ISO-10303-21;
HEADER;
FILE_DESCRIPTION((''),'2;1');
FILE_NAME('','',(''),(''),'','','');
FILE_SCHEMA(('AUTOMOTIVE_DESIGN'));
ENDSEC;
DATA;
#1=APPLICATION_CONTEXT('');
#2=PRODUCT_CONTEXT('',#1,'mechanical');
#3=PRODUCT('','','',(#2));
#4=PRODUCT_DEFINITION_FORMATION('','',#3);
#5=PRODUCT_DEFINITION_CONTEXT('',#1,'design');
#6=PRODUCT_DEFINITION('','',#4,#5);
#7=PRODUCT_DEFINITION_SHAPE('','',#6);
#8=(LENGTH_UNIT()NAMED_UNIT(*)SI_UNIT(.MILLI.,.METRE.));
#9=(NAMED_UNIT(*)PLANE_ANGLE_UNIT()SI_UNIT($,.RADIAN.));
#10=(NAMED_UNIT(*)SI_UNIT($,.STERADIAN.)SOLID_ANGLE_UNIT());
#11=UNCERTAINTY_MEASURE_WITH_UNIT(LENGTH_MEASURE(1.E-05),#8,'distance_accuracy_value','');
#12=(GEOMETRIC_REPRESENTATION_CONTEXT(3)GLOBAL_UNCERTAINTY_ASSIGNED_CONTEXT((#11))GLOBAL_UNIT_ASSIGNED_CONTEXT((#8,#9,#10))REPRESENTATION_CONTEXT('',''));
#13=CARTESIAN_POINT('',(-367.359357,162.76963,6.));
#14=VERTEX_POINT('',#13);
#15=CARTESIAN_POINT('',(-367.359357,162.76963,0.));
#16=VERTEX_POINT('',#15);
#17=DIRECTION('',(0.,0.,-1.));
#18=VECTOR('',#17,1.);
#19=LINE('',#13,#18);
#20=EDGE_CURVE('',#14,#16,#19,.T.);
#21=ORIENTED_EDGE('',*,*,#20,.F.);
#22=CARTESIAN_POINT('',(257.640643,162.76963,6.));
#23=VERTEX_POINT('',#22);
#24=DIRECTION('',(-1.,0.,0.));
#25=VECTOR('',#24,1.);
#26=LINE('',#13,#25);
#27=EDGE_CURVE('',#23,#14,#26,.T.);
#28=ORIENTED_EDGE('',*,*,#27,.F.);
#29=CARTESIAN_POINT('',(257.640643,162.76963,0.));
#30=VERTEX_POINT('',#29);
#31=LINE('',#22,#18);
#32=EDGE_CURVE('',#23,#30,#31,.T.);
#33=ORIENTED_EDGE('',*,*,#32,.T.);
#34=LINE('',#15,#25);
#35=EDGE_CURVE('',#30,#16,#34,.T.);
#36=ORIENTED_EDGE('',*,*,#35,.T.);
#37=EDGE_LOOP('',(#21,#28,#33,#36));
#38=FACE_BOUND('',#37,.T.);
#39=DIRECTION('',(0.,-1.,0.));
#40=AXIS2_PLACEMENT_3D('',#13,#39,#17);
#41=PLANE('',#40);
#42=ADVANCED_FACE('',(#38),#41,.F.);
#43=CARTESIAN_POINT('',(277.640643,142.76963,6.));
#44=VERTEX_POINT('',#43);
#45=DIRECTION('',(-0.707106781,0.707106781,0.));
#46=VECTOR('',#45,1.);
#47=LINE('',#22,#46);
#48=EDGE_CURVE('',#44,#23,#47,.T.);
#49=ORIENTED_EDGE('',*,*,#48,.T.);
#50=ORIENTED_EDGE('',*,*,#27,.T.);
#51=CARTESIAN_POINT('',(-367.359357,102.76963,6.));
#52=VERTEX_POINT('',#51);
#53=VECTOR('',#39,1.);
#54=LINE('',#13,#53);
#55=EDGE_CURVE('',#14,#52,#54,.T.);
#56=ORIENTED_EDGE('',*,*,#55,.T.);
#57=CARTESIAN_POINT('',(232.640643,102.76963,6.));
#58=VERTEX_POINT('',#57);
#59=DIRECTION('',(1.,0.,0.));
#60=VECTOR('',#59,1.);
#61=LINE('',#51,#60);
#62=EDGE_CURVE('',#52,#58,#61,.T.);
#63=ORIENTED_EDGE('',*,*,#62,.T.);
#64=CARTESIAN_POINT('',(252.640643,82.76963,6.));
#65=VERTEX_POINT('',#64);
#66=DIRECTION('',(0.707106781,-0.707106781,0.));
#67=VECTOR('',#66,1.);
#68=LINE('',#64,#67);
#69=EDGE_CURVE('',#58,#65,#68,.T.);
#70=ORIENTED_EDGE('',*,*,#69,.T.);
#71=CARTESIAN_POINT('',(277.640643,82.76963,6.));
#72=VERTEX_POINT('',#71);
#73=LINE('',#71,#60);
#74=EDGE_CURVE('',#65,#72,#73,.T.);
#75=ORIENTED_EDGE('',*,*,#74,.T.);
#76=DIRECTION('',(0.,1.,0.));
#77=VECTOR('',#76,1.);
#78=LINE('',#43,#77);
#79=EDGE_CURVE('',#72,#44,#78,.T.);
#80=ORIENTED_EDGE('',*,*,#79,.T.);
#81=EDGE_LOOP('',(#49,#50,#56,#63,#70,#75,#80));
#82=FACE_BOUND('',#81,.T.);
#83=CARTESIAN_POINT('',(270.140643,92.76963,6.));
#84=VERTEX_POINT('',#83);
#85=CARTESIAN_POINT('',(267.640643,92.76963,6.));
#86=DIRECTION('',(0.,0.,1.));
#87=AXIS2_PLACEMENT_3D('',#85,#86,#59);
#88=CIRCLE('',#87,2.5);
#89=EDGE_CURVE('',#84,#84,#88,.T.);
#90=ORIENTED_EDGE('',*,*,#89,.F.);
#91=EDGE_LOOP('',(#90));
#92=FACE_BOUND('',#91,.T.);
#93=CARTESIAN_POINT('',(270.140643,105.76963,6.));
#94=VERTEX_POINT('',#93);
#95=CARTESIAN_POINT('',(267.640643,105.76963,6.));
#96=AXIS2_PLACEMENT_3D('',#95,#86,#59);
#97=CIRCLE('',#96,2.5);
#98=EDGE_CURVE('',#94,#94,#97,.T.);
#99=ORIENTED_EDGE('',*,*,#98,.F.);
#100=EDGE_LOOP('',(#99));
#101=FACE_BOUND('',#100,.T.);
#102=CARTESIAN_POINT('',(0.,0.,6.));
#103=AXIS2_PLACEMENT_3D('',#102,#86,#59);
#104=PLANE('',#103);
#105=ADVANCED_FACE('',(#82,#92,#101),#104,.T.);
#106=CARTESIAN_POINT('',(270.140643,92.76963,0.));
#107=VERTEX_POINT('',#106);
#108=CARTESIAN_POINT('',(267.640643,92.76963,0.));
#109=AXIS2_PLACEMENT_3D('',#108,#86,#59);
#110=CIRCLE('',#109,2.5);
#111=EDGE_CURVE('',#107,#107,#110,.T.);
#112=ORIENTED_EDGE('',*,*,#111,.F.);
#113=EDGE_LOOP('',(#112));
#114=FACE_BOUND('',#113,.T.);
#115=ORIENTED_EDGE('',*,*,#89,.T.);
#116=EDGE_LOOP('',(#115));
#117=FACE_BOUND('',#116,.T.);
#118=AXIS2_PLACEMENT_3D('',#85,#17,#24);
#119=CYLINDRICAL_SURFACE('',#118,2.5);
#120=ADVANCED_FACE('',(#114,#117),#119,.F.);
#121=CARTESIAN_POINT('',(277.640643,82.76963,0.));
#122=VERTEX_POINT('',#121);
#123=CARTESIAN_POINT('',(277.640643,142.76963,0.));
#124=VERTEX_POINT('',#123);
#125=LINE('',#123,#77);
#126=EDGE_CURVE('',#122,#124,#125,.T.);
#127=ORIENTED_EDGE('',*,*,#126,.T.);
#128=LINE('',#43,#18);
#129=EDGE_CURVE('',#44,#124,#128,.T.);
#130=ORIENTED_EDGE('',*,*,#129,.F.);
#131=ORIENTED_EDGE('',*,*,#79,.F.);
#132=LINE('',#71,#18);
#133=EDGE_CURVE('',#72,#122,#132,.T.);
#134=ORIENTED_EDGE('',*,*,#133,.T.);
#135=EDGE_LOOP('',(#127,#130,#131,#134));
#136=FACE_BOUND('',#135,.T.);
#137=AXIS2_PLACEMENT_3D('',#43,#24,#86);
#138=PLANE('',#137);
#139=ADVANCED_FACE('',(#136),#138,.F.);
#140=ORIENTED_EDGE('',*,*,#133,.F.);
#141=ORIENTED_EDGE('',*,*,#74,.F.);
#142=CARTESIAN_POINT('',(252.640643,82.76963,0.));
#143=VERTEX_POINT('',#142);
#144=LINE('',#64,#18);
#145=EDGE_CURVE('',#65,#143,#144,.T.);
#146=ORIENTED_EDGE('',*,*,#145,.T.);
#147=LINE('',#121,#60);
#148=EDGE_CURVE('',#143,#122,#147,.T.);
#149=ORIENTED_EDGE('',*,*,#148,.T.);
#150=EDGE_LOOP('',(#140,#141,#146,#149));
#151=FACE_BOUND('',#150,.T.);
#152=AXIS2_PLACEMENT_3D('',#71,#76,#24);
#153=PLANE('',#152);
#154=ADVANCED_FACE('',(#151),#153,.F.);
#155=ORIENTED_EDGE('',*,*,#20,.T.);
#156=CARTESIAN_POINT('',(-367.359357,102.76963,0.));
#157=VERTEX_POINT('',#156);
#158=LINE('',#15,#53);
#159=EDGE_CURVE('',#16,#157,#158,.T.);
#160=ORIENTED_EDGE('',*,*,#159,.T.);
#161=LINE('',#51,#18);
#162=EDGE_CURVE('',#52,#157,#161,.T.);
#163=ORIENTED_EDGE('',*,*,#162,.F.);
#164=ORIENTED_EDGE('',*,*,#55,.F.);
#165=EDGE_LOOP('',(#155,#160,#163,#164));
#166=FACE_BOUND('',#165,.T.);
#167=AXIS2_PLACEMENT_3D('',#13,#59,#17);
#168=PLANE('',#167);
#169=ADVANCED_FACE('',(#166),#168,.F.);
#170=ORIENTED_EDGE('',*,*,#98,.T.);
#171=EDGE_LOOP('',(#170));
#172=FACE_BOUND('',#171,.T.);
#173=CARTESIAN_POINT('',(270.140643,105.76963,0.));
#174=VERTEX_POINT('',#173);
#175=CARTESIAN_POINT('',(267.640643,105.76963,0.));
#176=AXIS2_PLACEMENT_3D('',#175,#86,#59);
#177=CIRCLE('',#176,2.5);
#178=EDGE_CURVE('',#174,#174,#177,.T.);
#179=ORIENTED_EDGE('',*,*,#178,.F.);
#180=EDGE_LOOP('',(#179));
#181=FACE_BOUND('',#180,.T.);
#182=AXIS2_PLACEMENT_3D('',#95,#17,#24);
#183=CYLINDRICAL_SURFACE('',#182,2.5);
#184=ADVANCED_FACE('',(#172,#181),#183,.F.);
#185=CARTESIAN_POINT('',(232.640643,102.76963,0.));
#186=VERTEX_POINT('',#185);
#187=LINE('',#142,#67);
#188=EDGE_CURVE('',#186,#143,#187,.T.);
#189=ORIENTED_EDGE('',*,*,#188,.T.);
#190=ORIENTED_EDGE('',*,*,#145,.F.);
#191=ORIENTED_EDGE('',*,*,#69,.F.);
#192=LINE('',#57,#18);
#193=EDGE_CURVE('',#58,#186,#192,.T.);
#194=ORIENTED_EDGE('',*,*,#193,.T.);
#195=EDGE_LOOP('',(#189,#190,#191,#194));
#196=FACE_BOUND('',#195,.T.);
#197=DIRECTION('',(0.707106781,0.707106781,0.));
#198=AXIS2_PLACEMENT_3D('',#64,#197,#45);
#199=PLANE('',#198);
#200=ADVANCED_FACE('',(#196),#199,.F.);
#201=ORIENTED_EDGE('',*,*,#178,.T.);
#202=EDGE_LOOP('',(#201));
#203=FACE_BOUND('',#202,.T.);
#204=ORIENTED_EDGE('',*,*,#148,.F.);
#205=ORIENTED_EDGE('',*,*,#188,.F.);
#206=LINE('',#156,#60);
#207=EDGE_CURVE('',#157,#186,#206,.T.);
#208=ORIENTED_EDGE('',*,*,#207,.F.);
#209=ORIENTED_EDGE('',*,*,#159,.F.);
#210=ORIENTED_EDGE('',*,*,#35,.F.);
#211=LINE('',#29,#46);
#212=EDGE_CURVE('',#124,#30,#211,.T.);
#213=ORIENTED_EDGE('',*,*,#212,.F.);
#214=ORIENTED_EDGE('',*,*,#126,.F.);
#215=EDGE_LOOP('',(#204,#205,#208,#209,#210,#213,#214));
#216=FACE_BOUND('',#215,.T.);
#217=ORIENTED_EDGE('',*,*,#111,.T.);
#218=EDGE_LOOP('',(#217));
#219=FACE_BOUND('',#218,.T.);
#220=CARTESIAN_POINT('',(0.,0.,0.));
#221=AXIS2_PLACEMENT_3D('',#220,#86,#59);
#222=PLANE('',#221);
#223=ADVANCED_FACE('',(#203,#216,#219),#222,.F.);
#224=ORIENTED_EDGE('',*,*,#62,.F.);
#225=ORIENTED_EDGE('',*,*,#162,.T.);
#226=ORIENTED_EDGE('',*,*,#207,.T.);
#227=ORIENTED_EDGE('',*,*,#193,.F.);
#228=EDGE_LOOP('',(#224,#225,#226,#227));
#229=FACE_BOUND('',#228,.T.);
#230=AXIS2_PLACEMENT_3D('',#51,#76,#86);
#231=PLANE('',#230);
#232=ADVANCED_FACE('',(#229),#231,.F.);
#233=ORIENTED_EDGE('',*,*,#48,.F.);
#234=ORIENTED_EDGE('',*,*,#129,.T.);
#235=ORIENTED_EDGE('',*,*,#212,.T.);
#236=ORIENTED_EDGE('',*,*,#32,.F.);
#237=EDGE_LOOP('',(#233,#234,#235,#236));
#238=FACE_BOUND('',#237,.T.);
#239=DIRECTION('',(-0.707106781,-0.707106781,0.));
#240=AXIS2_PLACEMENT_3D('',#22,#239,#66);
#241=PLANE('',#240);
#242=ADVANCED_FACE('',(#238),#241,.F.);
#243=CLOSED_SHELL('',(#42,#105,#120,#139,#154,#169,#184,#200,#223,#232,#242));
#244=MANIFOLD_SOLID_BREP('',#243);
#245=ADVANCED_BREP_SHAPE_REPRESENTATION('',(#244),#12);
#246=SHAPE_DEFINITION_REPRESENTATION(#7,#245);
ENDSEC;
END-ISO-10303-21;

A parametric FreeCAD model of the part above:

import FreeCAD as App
import Part
import Sketcher

V = App.Vector
Q = App.Units.Quantity

doc = App.newDocument("Part")
body = doc.addObject("PartDesign::Body", "Body")

sketch1 = doc.addObject("Sketcher::SketchObject", "Sketch")
body.addObject(sketch1)
sketch1.AttachmentSupport = (doc.XY_Plane, [""])
sketch1.MapMode = "FlatFace"
sketch1.addGeometry(Part.LineSegment(V(277.6, 142.8, 0), V(257.6, 162.8, 0)), False)
sketch1.addGeometry(Part.LineSegment(V(257.6, 162.8, 0), V(-367.4, 162.8, 0)), False)
sketch1.addGeometry(Part.LineSegment(V(-367.4, 162.8, 0), V(-367.4, 102.8, 0)), False)
sketch1.addGeometry(Part.LineSegment(V(-367.4, 102.8, 0), V(232.6, 102.8, 0)), False)
sketch1.addGeometry(Part.LineSegment(V(232.6, 102.8, 0), V(252.6, 82.8, 0)), False)
sketch1.addGeometry(Part.LineSegment(V(252.6, 82.8, 0), V(277.6, 82.8, 0)), False)
sketch1.addGeometry(Part.LineSegment(V(277.6, 82.8, 0), V(277.6, 142.8, 0)), False)
sketch1.addGeometry(Part.Circle(V(267.6, 92.8, 0), V(0, 0, 1), 2.5), False)
sketch1.addGeometry(Part.Circle(V(267.6, 105.8, 0), V(0, 0, 1), 2.5), False)
sketch1.addConstraint(Sketcher.Constraint("Coincident", 0, 2, 1, 1))
sketch1.addConstraint(Sketcher.Constraint("Coincident", 1, 2, 2, 1))
sketch1.addConstraint(Sketcher.Constraint("Coincident", 2, 2, 3, 1))
sketch1.addConstraint(Sketcher.Constraint("Coincident", 3, 2, 4, 1))
sketch1.addConstraint(Sketcher.Constraint("Coincident", 4, 2, 5, 1))
sketch1.addConstraint(Sketcher.Constraint("Coincident", 5, 2, 6, 1))
sketch1.addConstraint(Sketcher.Constraint("Coincident", 6, 2, 0, 1))
sketch1.addConstraint(Sketcher.Constraint("Horizontal", 1))
sketch1.addConstraint(Sketcher.Constraint("Vertical", 2))
sketch1.addConstraint(Sketcher.Constraint("Horizontal", 3))
sketch1.addConstraint(Sketcher.Constraint("Horizontal", 5))
sketch1.addConstraint(Sketcher.Constraint("Vertical", 6))
sketch1.addConstraint(Sketcher.Constraint("Equal", 7, 8))
sketch1.addConstraint(Sketcher.Constraint("Parallel", 0, 4))
sketch1.addConstraint(Sketcher.Constraint("Vertical", 7, 3, 8, 3))
sketch1.addConstraint(Sketcher.Constraint("Equal", 2, 6))
sketch1.addConstraint(Sketcher.Constraint("Diameter", 7, Q("5 mm")))
sketch1.addConstraint(Sketcher.Constraint("DistanceX", 1, 2, 1, 1, Q("625 mm")))
sketch1.addConstraint(Sketcher.Constraint("DistanceX", 3, 1, 3, 2, Q("600 mm")))
sketch1.addConstraint(Sketcher.Constraint("DistanceY", 2, 2, 2, 1, Q("60 mm")))
sketch1.addConstraint(Sketcher.Constraint("Angle", 0, Q("135 deg")))
sketch1.addConstraint(Sketcher.Constraint("DistanceY", 7, 3, 8, 3, Q("13 mm")))
sketch1.addConstraint(Sketcher.Constraint("DistanceX", 0, 2, 8, 3, Q("10 mm")))
sketch1.addConstraint(Sketcher.Constraint("DistanceY", 8, 3, 0, 2, Q("57 mm")))
sketch1.addConstraint(Sketcher.Constraint("DistanceX", 4, 2, 7, 3, Q("15 mm")))
sketch1.addConstraint(Sketcher.Constraint("DistanceY", -1, 1, 7, 3, Q("92.76963 mm")))
sketch1.addConstraint(Sketcher.Constraint("DistanceX", -1, 1, 7, 3, Q("267.640643 mm")))
pad1 = doc.addObject("PartDesign::Pad", "Pad")
body.addObject(pad1)
pad1.Profile = sketch1
pad1.Length = 6

doc.recompute()
